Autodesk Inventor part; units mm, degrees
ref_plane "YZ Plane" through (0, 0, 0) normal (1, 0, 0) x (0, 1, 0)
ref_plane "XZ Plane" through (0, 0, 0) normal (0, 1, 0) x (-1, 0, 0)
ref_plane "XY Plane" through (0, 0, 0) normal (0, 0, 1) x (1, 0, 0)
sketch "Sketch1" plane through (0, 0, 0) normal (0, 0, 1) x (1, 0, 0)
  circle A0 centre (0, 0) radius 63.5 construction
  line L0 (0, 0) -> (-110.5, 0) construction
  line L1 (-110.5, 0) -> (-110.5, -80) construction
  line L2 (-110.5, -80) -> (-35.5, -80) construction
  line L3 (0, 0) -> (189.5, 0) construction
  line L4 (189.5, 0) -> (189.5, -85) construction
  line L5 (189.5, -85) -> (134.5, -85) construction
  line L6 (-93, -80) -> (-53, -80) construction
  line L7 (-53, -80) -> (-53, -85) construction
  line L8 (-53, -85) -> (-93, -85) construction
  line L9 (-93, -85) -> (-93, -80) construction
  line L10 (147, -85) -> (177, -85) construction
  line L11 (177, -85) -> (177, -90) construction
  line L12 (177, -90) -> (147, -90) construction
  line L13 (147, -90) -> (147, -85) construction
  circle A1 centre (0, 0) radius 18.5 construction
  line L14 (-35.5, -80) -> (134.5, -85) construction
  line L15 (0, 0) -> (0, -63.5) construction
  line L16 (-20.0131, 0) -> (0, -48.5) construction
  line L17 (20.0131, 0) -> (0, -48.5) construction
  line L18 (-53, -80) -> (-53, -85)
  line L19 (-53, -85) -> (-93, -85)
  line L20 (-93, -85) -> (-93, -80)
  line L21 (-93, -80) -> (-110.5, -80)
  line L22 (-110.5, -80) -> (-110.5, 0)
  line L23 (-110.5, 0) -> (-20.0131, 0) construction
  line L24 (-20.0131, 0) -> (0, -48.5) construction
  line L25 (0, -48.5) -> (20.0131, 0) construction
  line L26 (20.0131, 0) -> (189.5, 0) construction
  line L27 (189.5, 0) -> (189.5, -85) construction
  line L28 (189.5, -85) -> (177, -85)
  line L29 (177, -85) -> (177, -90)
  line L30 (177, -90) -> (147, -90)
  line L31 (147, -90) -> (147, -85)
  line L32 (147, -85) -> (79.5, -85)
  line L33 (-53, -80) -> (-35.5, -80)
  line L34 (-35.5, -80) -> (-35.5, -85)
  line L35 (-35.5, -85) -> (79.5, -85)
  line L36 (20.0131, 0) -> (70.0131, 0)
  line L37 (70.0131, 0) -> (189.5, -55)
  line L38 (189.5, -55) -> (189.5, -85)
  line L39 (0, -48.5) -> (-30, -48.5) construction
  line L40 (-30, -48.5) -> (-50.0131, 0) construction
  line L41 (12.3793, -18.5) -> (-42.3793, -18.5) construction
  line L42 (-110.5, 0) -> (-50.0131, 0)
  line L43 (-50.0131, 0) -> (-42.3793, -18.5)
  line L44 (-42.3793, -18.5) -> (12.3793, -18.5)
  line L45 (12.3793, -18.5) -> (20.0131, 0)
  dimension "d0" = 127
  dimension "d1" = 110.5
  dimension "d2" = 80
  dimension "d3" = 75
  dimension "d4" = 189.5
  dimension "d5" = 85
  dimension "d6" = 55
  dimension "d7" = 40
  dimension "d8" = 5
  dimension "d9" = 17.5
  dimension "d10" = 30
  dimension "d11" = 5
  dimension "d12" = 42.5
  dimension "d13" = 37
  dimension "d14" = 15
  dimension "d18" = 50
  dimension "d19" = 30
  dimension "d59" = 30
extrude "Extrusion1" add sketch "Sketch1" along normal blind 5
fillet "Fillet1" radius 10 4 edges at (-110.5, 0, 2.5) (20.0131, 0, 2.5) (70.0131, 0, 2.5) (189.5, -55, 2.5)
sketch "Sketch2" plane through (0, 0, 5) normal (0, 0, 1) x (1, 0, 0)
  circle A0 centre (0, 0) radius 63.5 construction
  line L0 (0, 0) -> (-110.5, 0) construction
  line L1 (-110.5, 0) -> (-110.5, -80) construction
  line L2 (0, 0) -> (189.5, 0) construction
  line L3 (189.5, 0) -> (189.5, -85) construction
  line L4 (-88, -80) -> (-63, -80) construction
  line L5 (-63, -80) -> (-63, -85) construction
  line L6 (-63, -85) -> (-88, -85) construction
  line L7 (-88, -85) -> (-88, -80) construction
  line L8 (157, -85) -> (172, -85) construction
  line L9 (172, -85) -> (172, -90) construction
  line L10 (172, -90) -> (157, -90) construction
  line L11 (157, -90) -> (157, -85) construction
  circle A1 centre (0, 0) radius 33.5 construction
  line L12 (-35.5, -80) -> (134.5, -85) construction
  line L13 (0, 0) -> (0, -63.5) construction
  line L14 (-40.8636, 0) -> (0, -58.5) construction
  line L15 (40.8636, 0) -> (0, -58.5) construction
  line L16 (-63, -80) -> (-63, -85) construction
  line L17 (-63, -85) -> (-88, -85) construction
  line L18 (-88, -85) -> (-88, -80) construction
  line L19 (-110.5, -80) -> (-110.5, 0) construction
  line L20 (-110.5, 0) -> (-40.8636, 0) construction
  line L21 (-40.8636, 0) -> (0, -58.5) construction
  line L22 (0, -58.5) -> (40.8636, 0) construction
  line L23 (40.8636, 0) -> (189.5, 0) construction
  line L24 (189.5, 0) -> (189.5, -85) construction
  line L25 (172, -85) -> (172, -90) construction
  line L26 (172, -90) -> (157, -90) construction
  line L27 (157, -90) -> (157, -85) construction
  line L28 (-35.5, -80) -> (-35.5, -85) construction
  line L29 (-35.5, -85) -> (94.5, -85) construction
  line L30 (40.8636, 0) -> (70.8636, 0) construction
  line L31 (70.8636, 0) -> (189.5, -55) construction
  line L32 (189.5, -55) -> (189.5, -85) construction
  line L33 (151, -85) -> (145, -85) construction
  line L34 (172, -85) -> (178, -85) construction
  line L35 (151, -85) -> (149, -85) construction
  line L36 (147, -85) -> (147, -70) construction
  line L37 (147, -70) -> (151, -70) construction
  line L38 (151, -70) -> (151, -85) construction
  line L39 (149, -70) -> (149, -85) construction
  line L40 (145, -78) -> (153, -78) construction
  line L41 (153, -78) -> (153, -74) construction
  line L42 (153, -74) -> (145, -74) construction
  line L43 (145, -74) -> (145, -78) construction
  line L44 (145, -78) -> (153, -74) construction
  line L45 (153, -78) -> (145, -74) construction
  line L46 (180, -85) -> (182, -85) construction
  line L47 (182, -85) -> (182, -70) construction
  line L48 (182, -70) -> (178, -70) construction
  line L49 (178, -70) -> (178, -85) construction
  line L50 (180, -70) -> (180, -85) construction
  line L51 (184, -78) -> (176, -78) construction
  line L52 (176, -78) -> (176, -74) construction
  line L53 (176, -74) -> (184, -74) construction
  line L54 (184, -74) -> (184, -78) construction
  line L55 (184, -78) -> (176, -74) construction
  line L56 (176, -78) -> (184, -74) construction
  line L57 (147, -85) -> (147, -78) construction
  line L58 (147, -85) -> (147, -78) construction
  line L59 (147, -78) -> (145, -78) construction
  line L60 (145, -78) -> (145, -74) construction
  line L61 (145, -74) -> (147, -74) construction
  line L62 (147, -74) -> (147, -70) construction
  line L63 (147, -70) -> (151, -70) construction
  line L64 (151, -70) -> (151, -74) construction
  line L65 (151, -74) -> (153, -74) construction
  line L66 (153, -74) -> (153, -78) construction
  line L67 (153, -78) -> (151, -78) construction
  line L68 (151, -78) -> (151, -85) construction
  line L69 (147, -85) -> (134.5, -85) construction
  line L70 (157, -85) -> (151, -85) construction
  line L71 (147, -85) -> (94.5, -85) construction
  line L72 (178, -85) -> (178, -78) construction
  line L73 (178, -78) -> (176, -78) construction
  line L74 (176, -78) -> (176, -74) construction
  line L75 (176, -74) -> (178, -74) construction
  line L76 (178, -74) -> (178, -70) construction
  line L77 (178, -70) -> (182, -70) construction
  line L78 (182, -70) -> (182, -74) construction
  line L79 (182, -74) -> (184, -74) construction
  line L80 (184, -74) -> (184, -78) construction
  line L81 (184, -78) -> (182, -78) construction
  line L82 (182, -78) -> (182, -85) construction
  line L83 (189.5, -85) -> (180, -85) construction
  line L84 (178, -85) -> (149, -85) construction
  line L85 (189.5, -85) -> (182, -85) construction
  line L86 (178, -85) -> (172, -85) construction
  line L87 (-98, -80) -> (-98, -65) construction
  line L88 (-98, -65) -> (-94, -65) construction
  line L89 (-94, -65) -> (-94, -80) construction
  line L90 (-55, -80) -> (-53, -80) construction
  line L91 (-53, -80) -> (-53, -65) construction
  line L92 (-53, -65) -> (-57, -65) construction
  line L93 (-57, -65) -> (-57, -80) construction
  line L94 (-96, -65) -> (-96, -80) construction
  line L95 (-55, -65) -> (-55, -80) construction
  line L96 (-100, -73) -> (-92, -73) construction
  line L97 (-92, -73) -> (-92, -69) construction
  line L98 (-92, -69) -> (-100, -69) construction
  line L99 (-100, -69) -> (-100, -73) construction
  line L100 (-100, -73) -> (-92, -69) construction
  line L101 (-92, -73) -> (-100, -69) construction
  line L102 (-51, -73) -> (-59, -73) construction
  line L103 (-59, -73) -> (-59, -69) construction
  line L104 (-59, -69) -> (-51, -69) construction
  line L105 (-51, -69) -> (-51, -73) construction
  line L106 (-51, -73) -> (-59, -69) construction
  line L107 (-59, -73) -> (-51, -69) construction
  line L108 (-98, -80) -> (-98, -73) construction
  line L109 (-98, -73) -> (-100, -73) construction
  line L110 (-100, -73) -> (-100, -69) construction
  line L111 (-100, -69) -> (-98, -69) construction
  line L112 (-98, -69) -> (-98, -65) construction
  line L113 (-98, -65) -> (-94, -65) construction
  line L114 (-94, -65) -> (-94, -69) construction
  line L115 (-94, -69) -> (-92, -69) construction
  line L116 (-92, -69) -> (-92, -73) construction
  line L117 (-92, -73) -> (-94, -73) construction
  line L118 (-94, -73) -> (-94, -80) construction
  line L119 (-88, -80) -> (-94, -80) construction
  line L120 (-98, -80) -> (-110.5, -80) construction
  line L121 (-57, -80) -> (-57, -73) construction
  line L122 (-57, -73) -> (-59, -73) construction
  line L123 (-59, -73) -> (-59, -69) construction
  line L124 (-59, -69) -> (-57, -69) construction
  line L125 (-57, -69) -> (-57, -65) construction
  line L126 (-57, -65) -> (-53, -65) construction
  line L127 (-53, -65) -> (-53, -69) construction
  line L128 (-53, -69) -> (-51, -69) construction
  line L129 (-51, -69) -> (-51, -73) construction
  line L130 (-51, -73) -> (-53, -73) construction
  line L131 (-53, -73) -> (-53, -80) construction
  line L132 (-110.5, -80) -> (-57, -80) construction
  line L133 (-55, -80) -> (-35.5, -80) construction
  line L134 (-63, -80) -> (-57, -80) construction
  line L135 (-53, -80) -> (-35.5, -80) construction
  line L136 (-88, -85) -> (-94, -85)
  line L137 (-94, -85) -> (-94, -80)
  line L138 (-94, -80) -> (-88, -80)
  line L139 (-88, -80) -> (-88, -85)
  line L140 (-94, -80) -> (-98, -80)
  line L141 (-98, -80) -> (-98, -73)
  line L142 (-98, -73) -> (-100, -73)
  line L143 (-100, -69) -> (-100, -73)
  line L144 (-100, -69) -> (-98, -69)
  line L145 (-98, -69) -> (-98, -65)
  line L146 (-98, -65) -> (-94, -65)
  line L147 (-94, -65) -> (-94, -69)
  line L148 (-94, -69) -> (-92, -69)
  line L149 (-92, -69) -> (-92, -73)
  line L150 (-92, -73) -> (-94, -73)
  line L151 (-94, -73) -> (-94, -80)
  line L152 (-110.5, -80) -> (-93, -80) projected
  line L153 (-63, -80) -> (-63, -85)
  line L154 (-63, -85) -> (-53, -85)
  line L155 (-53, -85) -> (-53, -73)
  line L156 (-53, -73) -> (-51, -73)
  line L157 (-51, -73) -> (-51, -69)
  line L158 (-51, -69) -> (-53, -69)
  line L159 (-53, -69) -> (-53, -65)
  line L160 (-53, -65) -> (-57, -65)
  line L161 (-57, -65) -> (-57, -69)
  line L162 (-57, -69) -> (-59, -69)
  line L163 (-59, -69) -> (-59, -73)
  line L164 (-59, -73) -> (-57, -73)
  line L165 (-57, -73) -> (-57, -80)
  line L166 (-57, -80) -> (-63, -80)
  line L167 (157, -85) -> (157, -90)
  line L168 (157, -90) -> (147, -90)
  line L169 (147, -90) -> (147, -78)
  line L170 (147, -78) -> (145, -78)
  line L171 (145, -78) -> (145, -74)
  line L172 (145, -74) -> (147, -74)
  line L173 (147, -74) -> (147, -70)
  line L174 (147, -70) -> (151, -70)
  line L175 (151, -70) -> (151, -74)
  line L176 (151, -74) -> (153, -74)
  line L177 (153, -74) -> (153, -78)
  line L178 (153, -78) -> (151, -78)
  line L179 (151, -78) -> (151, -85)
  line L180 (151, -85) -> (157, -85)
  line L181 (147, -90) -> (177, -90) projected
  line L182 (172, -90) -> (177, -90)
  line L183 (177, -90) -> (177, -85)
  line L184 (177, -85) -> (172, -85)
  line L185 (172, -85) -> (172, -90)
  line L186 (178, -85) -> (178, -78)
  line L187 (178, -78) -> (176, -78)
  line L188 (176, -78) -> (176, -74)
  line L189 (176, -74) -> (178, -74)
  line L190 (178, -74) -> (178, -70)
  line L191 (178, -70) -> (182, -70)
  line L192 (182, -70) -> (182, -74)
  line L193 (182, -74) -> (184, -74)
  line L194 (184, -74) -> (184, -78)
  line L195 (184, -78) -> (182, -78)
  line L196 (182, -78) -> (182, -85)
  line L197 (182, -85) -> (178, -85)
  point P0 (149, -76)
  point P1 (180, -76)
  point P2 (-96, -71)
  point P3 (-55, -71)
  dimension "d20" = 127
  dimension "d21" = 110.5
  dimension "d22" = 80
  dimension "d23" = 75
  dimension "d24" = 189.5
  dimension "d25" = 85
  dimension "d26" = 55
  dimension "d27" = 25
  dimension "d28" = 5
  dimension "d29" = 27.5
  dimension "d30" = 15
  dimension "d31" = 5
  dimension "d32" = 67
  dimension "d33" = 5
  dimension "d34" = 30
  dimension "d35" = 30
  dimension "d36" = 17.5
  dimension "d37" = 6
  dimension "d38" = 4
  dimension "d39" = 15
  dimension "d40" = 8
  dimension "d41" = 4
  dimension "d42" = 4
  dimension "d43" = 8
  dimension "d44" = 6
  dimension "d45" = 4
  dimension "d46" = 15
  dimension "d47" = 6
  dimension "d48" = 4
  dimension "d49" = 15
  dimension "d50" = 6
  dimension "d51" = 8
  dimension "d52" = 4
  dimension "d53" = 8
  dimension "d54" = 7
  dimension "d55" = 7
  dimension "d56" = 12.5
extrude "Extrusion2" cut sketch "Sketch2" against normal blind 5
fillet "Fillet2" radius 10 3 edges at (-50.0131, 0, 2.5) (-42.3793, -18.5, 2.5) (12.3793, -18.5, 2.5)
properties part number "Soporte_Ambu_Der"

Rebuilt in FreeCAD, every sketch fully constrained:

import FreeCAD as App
import Part
import Sketcher
from FreeCAD import Vector
Q = App.Units.Quantity


def edges_at(feature, points):
    """Names of the edges that pass closest to the given points."""
    edges = feature.Shape.Edges
    near = lambda p: min(range(len(edges)), key=lambda i: edges[i].distToShape(Part.Vertex(*p))[0])
    return sorted({f"Edge{near(p) + 1}" for p in points})


def add_polygon(sketch, points):
    """Adds a closed chain of lines whose ends are joined by coincident constraints."""
    first, n = sketch.GeometryCount, len(points)
    for a, b in zip(points, points[1:] + points[:1]):
        sketch.addGeometry(Part.LineSegment(App.Vector(*a, 0), App.Vector(*b, 0)), False)
    for i in range(n):
        sketch.addConstraint(Sketcher.Constraint("Coincident", first + i, 2, first + (i + 1) % n, 1))

doc = App.newDocument("Part")
body = doc.addObject("PartDesign::Body", "Body")

# Sketch on XY plane
sketch1 = body.newObject("Sketcher::SketchObject", "Sketch")
sketch1.AttachmentSupport = (doc.getObject("XY_Plane"), [""])
sketch1.MapMode = "FlatFace"
add_polygon(sketch1, [(-53, -85), (-53, -80), (-35.5, -80), (-35.5, -85), (147, -85), (147, -90), (177, -90), (177, -85), (189.5, -85), (189.5, -55), (70.0131, 0), (20.0131, 0), (12.3793, -18.5), (-42.3793, -18.5), (-50.0131, 0), (-110.5, 0), (-110.5, -80), (-93, -80), (-93, -85)])  # lines 0-18
sketch1.addConstraint([
    Sketcher.Constraint("Vertical", 0),
    Sketcher.Constraint("Horizontal", 1),
    Sketcher.Constraint("Vertical", 2),
    Sketcher.Constraint("Horizontal", 3),
    Sketcher.Constraint("Vertical", 4),
    Sketcher.Constraint("Horizontal", 5),
    Sketcher.Constraint("Vertical", 6),
    Sketcher.Constraint("Horizontal", 7),
    Sketcher.Constraint("Vertical", 8),
    Sketcher.Constraint("Horizontal", 10),
    Sketcher.Constraint("Horizontal", 12),
    Sketcher.Constraint("Horizontal", 14),
    Sketcher.Constraint("Vertical", 15),
    Sketcher.Constraint("Horizontal", 16),
    Sketcher.Constraint("Vertical", 17),
    Sketcher.Constraint("Horizontal", 18),
    Sketcher.Constraint("PointOnObject", 9, 2, -1),
    Sketcher.Constraint("PointOnObject", 13, 2, -1),
    Sketcher.Constraint("Horizontal", 3, 2, 6, 2),
    Sketcher.Constraint("Horizontal", 1, 2, 15, 2),
    Sketcher.Constraint("Horizontal", 7, 2, 17, 2),
    Sketcher.Constraint("Equal", 1, 16),
    Sketcher.Constraint("Equal", 2, 4),
    Sketcher.Constraint("Equal", 5, 8),
    Sketcher.Constraint("Equal", 11, 13),
    Sketcher.Constraint("DistanceX", 5, 1, 5, 2, Q("30 mm")),
    Sketcher.Constraint("DistanceX", 10, 2, 10, 1, Q("50 mm")),
    Sketcher.Constraint("DistanceX", 18, 1, 18, 2, Q("40 mm")),
    Sketcher.Constraint("DistanceY", 0, 1, 0, 2, Q("5 mm")),
    Sketcher.Constraint("DistanceY", 15, 2, 15, 1, Q("80 mm")),
    Sketcher.Constraint("DistanceX", 1, 1, 1, 2, Q("17.5 mm")),
    Sketcher.Constraint("DistanceX", -1, 1, 7, 2, Q("189.5 mm")),
    Sketcher.Constraint("DistanceX", 14, 2, -1, 1, Q("110.5 mm")),
    Sketcher.Constraint("DistanceX", 3, 2, 7, 2, Q("42.5 mm")),
    Sketcher.Constraint("DistanceY", 11, 2, -1, 1, Q("18.5 mm")),
    Sketcher.Constraint("DistanceX", 14, 2, 14, 1, Q("60.487 mm")),
    Sketcher.Constraint("Distance", 11, Q("20.013 mm")),
    Sketcher.Constraint("DistanceX", 12, 2, 12, 1, Q("54.7586 mm")),
])
pad1 = body.newObject("PartDesign::Pad", "Pad")
pad1.Profile = sketch1
pad1.Length = 5
doc.recompute()

fillet = body.newObject("PartDesign::Fillet", "Fillet")
fillet.Base = (pad1, edges_at(pad1, [
    (-110.5, 0, 2.5),
    (20.013, 0, 2.5),
    (70.013, 0, 2.5),
    (189.5, -55, 2.5),
]))
fillet.Radius = 10

# Sketch on XY plane
sketch2 = body.newObject("Sketcher::SketchObject", "Sketch001")
sketch2.AttachmentSupport = (doc.getObject("XY_Plane"), [""])
sketch2.MapMode = "FlatFace"
sketch2.AttachmentOffset = App.Placement(Vector(0, 0, 5), App.Rotation())
add_polygon(sketch2, [(-98, -80), (-94, -80), (-94, -73), (-92, -73), (-92, -69), (-94, -69), (-94, -65), (-98, -65), (-98, -69), (-100, -69), (-100, -73), (-98, -73)])  # lines 0-11
add_polygon(sketch2, [(-94, -85), (-88, -85), (-88, -80), (-94, -80)])  # lines 12-15
add_polygon(sketch2, [(-57, -80), (-63, -80), (-63, -85), (-53, -85), (-53, -73), (-51, -73), (-51, -69), (-53, -69), (-53, -65), (-57, -65), (-57, -69), (-59, -69), (-59, -73), (-57, -73)])  # lines 16-29
add_polygon(sketch2, [(172, -85), (172, -90), (177, -90), (177, -85)])  # lines 30-33
add_polygon(sketch2, [(157, -90), (157, -85), (151, -85), (151, -78), (153, -78), (153, -74), (151, -74), (151, -70), (147, -70), (147, -74), (145, -74), (145, -78), (147, -78), (147, -90)])  # lines 34-47
add_polygon(sketch2, [(178, -78), (178, -85), (182, -85), (182, -78), (184, -78), (184, -74), (182, -74), (182, -70), (178, -70), (178, -74), (176, -74), (176, -78)])  # lines 48-59
sketch2.addConstraint([
    Sketcher.Constraint("Horizontal", 0),
    Sketcher.Constraint("Vertical", 1),
    Sketcher.Constraint("Horizontal", 2),
    Sketcher.Constraint("Vertical", 3),
    Sketcher.Constraint("Horizontal", 4),
    Sketcher.Constraint("Vertical", 5),
    Sketcher.Constraint("Horizontal", 6),
    Sketcher.Constraint("Vertical", 7),
    Sketcher.Constraint("Horizontal", 8),
    Sketcher.Constraint("Vertical", 9),
    Sketcher.Constraint("Horizontal", 10),
    Sketcher.Constraint("Vertical", 11),
    Sketcher.Constraint("Horizontal", 12),
    Sketcher.Constraint("Vertical", 13),
    Sketcher.Constraint("Horizontal", 14),
    Sketcher.Constraint("Vertical", 15),
    Sketcher.Constraint("Horizontal", 16),
    Sketcher.Constraint("Vertical", 17),
    Sketcher.Constraint("Horizontal", 18),
    Sketcher.Constraint("Vertical", 19),
    Sketcher.Constraint("Horizontal", 20),
    Sketcher.Constraint("Vertical", 21),
    Sketcher.Constraint("Horizontal", 22),
    Sketcher.Constraint("Vertical", 23),
    Sketcher.Constraint("Horizontal", 24),
    Sketcher.Constraint("Vertical", 25),
    Sketcher.Constraint("Horizontal", 26),
    Sketcher.Constraint("Vertical", 27),
    Sketcher.Constraint("Horizontal", 28),
    Sketcher.Constraint("Vertical", 29),
    Sketcher.Constraint("Vertical", 30),
    Sketcher.Constraint("Horizontal", 31),
    Sketcher.Constraint("Vertical", 32),
    Sketcher.Constraint("Horizontal", 33),
    Sketcher.Constraint("Vertical", 34),
    Sketcher.Constraint("Horizontal", 35),
    Sketcher.Constraint("Vertical", 36),
    Sketcher.Constraint("Horizontal", 37),
    Sketcher.Constraint("Vertical", 38),
    Sketcher.Constraint("Horizontal", 39),
    Sketcher.Constraint("Vertical", 40),
    Sketcher.Constraint("Horizontal", 41),
    Sketcher.Constraint("Vertical", 42),
    Sketcher.Constraint("Horizontal", 43),
    Sketcher.Constraint("Vertical", 44),
    Sketcher.Constraint("Horizontal", 45),
    Sketcher.Constraint("Vertical", 46),
    Sketcher.Constraint("Horizontal", 47),
    Sketcher.Constraint("Vertical", 48),
    Sketcher.Constraint("Horizontal", 49),
    Sketcher.Constraint("Vertical", 50),
    Sketcher.Constraint("Horizontal", 51),
    Sketcher.Constraint("Vertical", 52),
    Sketcher.Constraint("Horizontal", 53),
    Sketcher.Constraint("Vertical", 54),
    Sketcher.Constraint("Horizontal", 55),
    Sketcher.Constraint("Vertical", 56),
    Sketcher.Constraint("Horizontal", 57),
    Sketcher.Constraint("Vertical", 58),
    Sketcher.Constraint("Horizontal", 59),
    Sketcher.Constraint("Coincident", 14, 2, 0, 2),
    Sketcher.Constraint("Horizontal", 4, 2, 7, 2),
    Sketcher.Constraint("Horizontal", 2, 2, 9, 2),
    Sketcher.Constraint("Horizontal", 14, 2, 16, 2),
    Sketcher.Constraint("Horizontal", 15, 2, 17, 2),
    Sketcher.Constraint("Horizontal", 10, 2, 19, 2),
    Sketcher.Constraint("Horizontal", 8, 2, 21, 2),
    Sketcher.Constraint("Horizontal", 6, 2, 23, 2),
    Sketcher.Constraint("Horizontal", 22, 2, 25, 2),
    Sketcher.Constraint("Horizontal", 20, 2, 27, 2),
    Sketcher.Constraint("Horizontal", 18, 2, 32, 2),
    Sketcher.Constraint("Horizontal", 33, 2, 34, 2),
    Sketcher.Constraint("Horizontal", 39, 2, 42, 2),
    Sketcher.Constraint("Horizontal", 37, 2, 44, 2),
    Sketcher.Constraint("Horizontal", 31, 2, 46, 2),
    Sketcher.Constraint("Horizontal", 35, 2, 48, 2),
    Sketcher.Constraint("Horizontal", 45, 2, 50, 2),
    Sketcher.Constraint("Horizontal", 43, 2, 52, 2),
    Sketcher.Constraint("Horizontal", 41, 2, 54, 2),
    Sketcher.Constraint("Horizontal", 53, 2, 56, 2),
    Sketcher.Constraint("Horizontal", 51, 2, 58, 2),
    Sketcher.Constraint("Vertical", 1, 2, 4, 2),
    Sketcher.Constraint("Vertical", 7, 2, 10, 2),
    Sketcher.Constraint("Vertical", 19, 2, 22, 2),
    Sketcher.Constraint("Vertical", 25, 2, 28, 2),
    Sketcher.Constraint("Vertical", 36, 2, 39, 2),
    Sketcher.Constraint("Vertical", 42, 2, 45, 2),
    Sketcher.Constraint("Vertical", 50, 2, 53, 2),
    Sketcher.Constraint("Vertical", 48, 2, 55, 2),
    Sketcher.Constraint("Equal", 4, 8),
    Sketcher.Constraint("Equal", 14, 16),
    Sketcher.Constraint("Equal", 10, 20),
    Sketcher.Constraint("Equal", 6, 24),
    Sketcher.Constraint("Equal", 22, 26),
    Sketcher.Constraint("Equal", 16, 35),
    Sketcher.Constraint("Equal", 28, 37),
    Sketcher.Constraint("Equal", 24, 41),
    Sketcher.Constraint("Equal", 39, 43),
    Sketcher.Constraint("Equal", 41, 49),
    Sketcher.Constraint("Equal", 45, 51),
    Sketcher.Constraint("Equal", 53, 57),
    Sketcher.Constraint("Equal", 55, 3),
    Sketcher.Constraint("Equal", 3, 5),
    Sketcher.Constraint("Equal", 33, 13),
    Sketcher.Constraint("Equal", 17, 30),
    Sketcher.Constraint("Equal", 29, 36),
    Sketcher.Constraint("Equal", 27, 38),
    Sketcher.Constraint("Equal", 38, 40),
    Sketcher.Constraint("DistanceX", 0, 1, 0, 2, Q("4 mm")),
    Sketcher.Constraint("DistanceX", 12, 1, 12, 2, Q("6 mm")),
    Sketcher.Constraint("DistanceX", 31, 1, 31, 2, Q("5 mm")),
    Sketcher.Constraint("DistanceY", 1, 1, 1, 2, Q("7 mm")),
    Sketcher.Constraint("DistanceY", 0, 2, -1, 1, Q("80 mm")),
    Sketcher.Constraint("DistanceX", 6, 2, 3, 2, Q("6 mm")),
    Sketcher.Constraint("DistanceX", 13, 2, 16, 2, Q("25 mm")),
    Sketcher.Constraint("DistanceX", 34, 2, 33, 2, Q("15 mm")),
    Sketcher.Constraint("DistanceX", 33, 2, 48, 2, Q("6 mm")),
    Sketcher.Constraint("DistanceX", 0, 2, -1, 1, Q("94 mm")),
    Sketcher.Constraint("DistanceX", -1, 1, 30, 2, Q("172 mm")),
])
pocket1 = body.newObject("PartDesign::Pocket", "Pocket")
pocket1.Profile = sketch2
pocket1.Length = 5
doc.recompute()

fillet2 = body.newObject("PartDesign::Fillet", "Fillet001")
fillet2.Base = (pocket1, edges_at(pocket1, [(-50.013, 0, 2.5), (-42.379, -18.5, 2.5), (12.379, -18.5, 2.5)]))
fillet2.Radius = 10

doc.recompute()
